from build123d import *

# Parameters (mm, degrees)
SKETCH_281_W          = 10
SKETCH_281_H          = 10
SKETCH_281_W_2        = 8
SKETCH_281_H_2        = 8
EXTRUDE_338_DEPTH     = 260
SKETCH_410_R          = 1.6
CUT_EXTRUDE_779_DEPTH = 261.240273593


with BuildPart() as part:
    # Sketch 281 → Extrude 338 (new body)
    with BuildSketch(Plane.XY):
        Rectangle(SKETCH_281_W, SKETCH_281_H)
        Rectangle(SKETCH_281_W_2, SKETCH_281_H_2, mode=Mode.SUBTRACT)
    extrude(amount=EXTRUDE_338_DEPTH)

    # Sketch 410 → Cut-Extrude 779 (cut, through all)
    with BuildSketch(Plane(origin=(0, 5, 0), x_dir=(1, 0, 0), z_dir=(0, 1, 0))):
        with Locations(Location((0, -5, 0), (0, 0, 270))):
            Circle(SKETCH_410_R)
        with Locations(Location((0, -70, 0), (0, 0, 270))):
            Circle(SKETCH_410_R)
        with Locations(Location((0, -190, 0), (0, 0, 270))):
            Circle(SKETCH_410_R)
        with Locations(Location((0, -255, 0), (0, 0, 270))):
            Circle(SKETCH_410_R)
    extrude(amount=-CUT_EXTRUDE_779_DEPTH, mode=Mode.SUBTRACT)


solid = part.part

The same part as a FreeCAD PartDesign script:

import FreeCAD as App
import Part
import Sketcher
Q = App.Units.Quantity

doc = App.newDocument("Part")
params = doc.addObject("Spreadsheet::Sheet", "Params")
for row, (alias, value) in enumerate([
    ("sketch1_width", "10 mm"),
    ("sketch1_width2", "8 mm"),
    ("pad1_length", "260 mm"),
    ("sketch2_diameter", "3.2 mm"),
], start=1):
    params.set(f"A{row}", alias)
    params.set(f"B{row}", "=" + value)
    params.setAlias(f"B{row}", alias)

body = doc.addObject("PartDesign::Body", "Body")

# Sketch on XY plane
sketch1 = body.newObject("Sketcher::SketchObject", "Sketch")
sketch1.AttachmentSupport = (doc.getObject("XY_Plane"), [""])
sketch1.MapMode = "FlatFace"
sketch1.addGeometry([
    Part.LineSegment(App.Vector(-5, 5, 0), App.Vector(-5, -5, 0)),  # 0
    Part.LineSegment(App.Vector(-5, -5, 0), App.Vector(5, -5, 0)),  # 1
    Part.LineSegment(App.Vector(5, -5, 0), App.Vector(5, 5, 0)),  # 2
    Part.LineSegment(App.Vector(5, 5, 0), App.Vector(-5, 5, 0)),  # 3
    Part.LineSegment(App.Vector(4, -4, 0), App.Vector(-4, -4, 0)),  # 4
    Part.LineSegment(App.Vector(-4, -4, 0), App.Vector(-4, 4, 0)),  # 5
    Part.LineSegment(App.Vector(-4, 4, 0), App.Vector(4, 4, 0)),  # 6
    Part.LineSegment(App.Vector(4, 4, 0), App.Vector(4, -4, 0)),  # 7
], False)
sketch1.addConstraint([
    Sketcher.Constraint("Coincident", 0, 2, 1, 1),
    Sketcher.Constraint("Coincident", 1, 2, 2, 1),
    Sketcher.Constraint("Coincident", 2, 2, 3, 1),
    Sketcher.Constraint("Coincident", 3, 2, 0, 1),
    Sketcher.Constraint("Coincident", 4, 2, 5, 1),
    Sketcher.Constraint("Coincident", 5, 2, 6, 1),
    Sketcher.Constraint("Coincident", 6, 2, 7, 1),
    Sketcher.Constraint("Coincident", 7, 2, 4, 1),
    Sketcher.Constraint("Vertical", 0),
    Sketcher.Constraint("Horizontal", 1),
    Sketcher.Constraint("Vertical", 2),
    Sketcher.Constraint("Horizontal", 3),
    Sketcher.Constraint("Horizontal", 4),
    Sketcher.Constraint("Vertical", 5),
    Sketcher.Constraint("Horizontal", 6),
    Sketcher.Constraint("Vertical", 7),
    Sketcher.Constraint("Symmetric", 0, 2, 2, 2, -1, 1),
    Sketcher.Constraint("Symmetric", 4, 2, 6, 2, -1, 1),
    Sketcher.Constraint("Equal", 3, 0),
    Sketcher.Constraint("Equal", 6, 5),
    Sketcher.Constraint("DistanceX", 1, 1, 1, 2, Q("10 mm")),
    Sketcher.Constraint("DistanceX", 4, 2, 4, 1, Q("8 mm")),
])
sketch1.setExpression("Constraints[20]", "Params.sketch1_width")
sketch1.setExpression("Constraints[21]", "Params.sketch1_width2")
pad1 = body.newObject("PartDesign::Pad", "Pad")
pad1.Profile = sketch1
pad1.setExpression("Length", "Params.pad1_length")

# Sketch on XZ plane
sketch2 = body.newObject("Sketcher::SketchObject", "Sketch001")
sketch2.AttachmentSupport = (doc.getObject("XZ_Plane"), [""])
sketch2.MapMode = "FlatFace"
sketch2.AttachmentOffset = App.Placement(App.Vector(0, 0, -5), App.Rotation())
sketch2.addGeometry([
    Part.Circle(App.Vector(0, 5, 0), App.Vector(0, 0, 1), 1.6),
    Part.Circle(App.Vector(0, 70, 0), App.Vector(0, 0, 1), 1.6),
    Part.Circle(App.Vector(0, 190, 0), App.Vector(0, 0, 1), 1.6),
    Part.Circle(App.Vector(0, 255, 0), App.Vector(0, 0, 1), 1.6),
], False)
sketch2.addConstraint([
    Sketcher.Constraint("Equal", 0, 1),
    Sketcher.Constraint("Equal", 1, 2),
    Sketcher.Constraint("Equal", 2, 3),
    Sketcher.Constraint("PointOnObject", 0, 3, -2),
    Sketcher.Constraint("PointOnObject", 1, 3, -2),
    Sketcher.Constraint("PointOnObject", 2, 3, -2),
    Sketcher.Constraint("PointOnObject", 3, 3, -2),
    Sketcher.Constraint("Diameter", 0, Q("3.2 mm")),
    Sketcher.Constraint("DistanceY", -1, 1, 0, 3, Q("5 mm")),
    Sketcher.Constraint("DistanceY", -1, 1, 1, 3, Q("70 mm")),
    Sketcher.Constraint("DistanceY", -1, 1, 2, 3, Q("190 mm")),
    Sketcher.Constraint("DistanceY", -1, 1, 3, 3, Q("255 mm")),
])
sketch2.setExpression("Constraints[7]", "Params.sketch2_diameter")
pocket1 = body.newObject("PartDesign::Pocket", "Pocket")
pocket1.Profile = sketch2
pocket1.Type = "ThroughAll"
pocket1.Reversed = True

doc.recompute()
